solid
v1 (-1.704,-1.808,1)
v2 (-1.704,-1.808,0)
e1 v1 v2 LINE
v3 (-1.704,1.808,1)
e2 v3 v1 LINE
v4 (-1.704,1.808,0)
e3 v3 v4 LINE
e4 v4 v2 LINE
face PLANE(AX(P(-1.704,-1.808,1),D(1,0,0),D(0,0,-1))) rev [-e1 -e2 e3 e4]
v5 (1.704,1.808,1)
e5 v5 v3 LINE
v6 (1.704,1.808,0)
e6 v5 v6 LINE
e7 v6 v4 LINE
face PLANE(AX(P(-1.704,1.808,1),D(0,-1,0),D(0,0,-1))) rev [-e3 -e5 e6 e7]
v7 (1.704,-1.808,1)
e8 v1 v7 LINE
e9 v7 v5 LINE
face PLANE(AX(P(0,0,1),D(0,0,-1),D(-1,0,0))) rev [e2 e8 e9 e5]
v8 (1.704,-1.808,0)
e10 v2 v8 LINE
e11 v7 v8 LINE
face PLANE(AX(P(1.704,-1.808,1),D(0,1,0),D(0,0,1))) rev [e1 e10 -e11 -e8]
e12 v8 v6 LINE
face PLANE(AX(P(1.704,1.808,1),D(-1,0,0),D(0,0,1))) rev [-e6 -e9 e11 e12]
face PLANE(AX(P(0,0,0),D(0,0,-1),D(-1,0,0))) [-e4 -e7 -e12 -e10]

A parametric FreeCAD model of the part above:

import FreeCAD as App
import Part
import Sketcher

V = App.Vector
Q = App.Units.Quantity


def add_polygon(sketch, points):
    """Adds a closed chain of lines whose ends are joined by coincident constraints."""
    first, n = sketch.GeometryCount, len(points)
    for a, b in zip(points, points[1:] + points[:1]):
        sketch.addGeometry(Part.LineSegment(App.Vector(*a, 0), App.Vector(*b, 0)), False)
    for i in range(n):
        sketch.addConstraint(Sketcher.Constraint("Coincident", first + i, 2, first + (i + 1) % n, 1))

doc = App.newDocument("Part")
body = doc.addObject("PartDesign::Body", "Body")

sketch1 = body.newObject("Sketcher::SketchObject", "Sketch")
sketch1.AttachmentSupport = (doc.getObject("XY_Plane"), [""])
sketch1.MapMode = "FlatFace"
add_polygon(sketch1, [(-1.704, 1.808), (-1.704, -1.808), (1.704, -1.808), (1.704, 1.808)])
sketch1.addConstraint(Sketcher.Constraint("Vertical", 0))
sketch1.addConstraint(Sketcher.Constraint("Horizontal", 1))
sketch1.addConstraint(Sketcher.Constraint("Vertical", 2))
sketch1.addConstraint(Sketcher.Constraint("Horizontal", 3))
sketch1.addConstraint(Sketcher.Constraint("Symmetric", 0, 2, 2, 2, -1, 1))
sketch1.addConstraint(Sketcher.Constraint("DistanceX", 1, 1, 1, 2, Q("3.408 mm")))
sketch1.addConstraint(Sketcher.Constraint("DistanceY", 0, 2, 0, 1, Q("3.616 mm")))
pad1 = body.newObject("PartDesign::Pad", "Pad")
pad1.Profile = sketch1
pad1.Length = 1

doc.recompute()
